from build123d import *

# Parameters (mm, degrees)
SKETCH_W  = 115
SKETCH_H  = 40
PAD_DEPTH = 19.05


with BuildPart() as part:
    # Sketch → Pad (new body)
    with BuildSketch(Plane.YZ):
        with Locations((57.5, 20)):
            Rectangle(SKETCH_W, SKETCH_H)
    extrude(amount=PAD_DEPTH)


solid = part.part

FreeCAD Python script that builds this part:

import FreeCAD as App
import Part
import Sketcher
from FreeCAD import Vector
Q = App.Units.Quantity

doc = App.newDocument("Part")
body = doc.addObject("PartDesign::Body", "Body")

sketch1 = body.newObject("Sketcher::SketchObject", "Sketch")
sketch1.AttachmentSupport = (doc.getObject("YZ_Plane"), [""])
sketch1.MapMode = "FlatFace"
sketch1.addGeometry([
    Part.LineSegment(Vector(0, 40, 0), Vector(0, 0, 0)),
    Part.LineSegment(Vector(0, 0, 0), Vector(115, 0, 0)),
    Part.LineSegment(Vector(115, 0, 0), Vector(115, 40, 0)),
    Part.LineSegment(Vector(115, 40, 0), Vector(0, 40, 0)),
], False)
sketch1.addConstraint([
    Sketcher.Constraint("Coincident", 0, 2, 1, 1),
    Sketcher.Constraint("Coincident", 1, 2, 2, 1),
    Sketcher.Constraint("Coincident", 2, 2, 3, 1),
    Sketcher.Constraint("Coincident", 3, 2, 0, 1),
    Sketcher.Constraint("Vertical", 0),
    Sketcher.Constraint("Horizontal", 1),
    Sketcher.Constraint("Vertical", 2),
    Sketcher.Constraint("Horizontal", 3),
    Sketcher.Constraint("Coincident", 0, 2, -1, 1),
    Sketcher.Constraint("DistanceX", 1, 1, 1, 2, Q("115 mm")),
    Sketcher.Constraint("DistanceY", 0, 2, 0, 1, Q("40 mm")),
])
pad1 = body.newObject("PartDesign::Pad", "Pad")
pad1.Profile = sketch1
pad1.Length = 19.05

doc.recompute()
